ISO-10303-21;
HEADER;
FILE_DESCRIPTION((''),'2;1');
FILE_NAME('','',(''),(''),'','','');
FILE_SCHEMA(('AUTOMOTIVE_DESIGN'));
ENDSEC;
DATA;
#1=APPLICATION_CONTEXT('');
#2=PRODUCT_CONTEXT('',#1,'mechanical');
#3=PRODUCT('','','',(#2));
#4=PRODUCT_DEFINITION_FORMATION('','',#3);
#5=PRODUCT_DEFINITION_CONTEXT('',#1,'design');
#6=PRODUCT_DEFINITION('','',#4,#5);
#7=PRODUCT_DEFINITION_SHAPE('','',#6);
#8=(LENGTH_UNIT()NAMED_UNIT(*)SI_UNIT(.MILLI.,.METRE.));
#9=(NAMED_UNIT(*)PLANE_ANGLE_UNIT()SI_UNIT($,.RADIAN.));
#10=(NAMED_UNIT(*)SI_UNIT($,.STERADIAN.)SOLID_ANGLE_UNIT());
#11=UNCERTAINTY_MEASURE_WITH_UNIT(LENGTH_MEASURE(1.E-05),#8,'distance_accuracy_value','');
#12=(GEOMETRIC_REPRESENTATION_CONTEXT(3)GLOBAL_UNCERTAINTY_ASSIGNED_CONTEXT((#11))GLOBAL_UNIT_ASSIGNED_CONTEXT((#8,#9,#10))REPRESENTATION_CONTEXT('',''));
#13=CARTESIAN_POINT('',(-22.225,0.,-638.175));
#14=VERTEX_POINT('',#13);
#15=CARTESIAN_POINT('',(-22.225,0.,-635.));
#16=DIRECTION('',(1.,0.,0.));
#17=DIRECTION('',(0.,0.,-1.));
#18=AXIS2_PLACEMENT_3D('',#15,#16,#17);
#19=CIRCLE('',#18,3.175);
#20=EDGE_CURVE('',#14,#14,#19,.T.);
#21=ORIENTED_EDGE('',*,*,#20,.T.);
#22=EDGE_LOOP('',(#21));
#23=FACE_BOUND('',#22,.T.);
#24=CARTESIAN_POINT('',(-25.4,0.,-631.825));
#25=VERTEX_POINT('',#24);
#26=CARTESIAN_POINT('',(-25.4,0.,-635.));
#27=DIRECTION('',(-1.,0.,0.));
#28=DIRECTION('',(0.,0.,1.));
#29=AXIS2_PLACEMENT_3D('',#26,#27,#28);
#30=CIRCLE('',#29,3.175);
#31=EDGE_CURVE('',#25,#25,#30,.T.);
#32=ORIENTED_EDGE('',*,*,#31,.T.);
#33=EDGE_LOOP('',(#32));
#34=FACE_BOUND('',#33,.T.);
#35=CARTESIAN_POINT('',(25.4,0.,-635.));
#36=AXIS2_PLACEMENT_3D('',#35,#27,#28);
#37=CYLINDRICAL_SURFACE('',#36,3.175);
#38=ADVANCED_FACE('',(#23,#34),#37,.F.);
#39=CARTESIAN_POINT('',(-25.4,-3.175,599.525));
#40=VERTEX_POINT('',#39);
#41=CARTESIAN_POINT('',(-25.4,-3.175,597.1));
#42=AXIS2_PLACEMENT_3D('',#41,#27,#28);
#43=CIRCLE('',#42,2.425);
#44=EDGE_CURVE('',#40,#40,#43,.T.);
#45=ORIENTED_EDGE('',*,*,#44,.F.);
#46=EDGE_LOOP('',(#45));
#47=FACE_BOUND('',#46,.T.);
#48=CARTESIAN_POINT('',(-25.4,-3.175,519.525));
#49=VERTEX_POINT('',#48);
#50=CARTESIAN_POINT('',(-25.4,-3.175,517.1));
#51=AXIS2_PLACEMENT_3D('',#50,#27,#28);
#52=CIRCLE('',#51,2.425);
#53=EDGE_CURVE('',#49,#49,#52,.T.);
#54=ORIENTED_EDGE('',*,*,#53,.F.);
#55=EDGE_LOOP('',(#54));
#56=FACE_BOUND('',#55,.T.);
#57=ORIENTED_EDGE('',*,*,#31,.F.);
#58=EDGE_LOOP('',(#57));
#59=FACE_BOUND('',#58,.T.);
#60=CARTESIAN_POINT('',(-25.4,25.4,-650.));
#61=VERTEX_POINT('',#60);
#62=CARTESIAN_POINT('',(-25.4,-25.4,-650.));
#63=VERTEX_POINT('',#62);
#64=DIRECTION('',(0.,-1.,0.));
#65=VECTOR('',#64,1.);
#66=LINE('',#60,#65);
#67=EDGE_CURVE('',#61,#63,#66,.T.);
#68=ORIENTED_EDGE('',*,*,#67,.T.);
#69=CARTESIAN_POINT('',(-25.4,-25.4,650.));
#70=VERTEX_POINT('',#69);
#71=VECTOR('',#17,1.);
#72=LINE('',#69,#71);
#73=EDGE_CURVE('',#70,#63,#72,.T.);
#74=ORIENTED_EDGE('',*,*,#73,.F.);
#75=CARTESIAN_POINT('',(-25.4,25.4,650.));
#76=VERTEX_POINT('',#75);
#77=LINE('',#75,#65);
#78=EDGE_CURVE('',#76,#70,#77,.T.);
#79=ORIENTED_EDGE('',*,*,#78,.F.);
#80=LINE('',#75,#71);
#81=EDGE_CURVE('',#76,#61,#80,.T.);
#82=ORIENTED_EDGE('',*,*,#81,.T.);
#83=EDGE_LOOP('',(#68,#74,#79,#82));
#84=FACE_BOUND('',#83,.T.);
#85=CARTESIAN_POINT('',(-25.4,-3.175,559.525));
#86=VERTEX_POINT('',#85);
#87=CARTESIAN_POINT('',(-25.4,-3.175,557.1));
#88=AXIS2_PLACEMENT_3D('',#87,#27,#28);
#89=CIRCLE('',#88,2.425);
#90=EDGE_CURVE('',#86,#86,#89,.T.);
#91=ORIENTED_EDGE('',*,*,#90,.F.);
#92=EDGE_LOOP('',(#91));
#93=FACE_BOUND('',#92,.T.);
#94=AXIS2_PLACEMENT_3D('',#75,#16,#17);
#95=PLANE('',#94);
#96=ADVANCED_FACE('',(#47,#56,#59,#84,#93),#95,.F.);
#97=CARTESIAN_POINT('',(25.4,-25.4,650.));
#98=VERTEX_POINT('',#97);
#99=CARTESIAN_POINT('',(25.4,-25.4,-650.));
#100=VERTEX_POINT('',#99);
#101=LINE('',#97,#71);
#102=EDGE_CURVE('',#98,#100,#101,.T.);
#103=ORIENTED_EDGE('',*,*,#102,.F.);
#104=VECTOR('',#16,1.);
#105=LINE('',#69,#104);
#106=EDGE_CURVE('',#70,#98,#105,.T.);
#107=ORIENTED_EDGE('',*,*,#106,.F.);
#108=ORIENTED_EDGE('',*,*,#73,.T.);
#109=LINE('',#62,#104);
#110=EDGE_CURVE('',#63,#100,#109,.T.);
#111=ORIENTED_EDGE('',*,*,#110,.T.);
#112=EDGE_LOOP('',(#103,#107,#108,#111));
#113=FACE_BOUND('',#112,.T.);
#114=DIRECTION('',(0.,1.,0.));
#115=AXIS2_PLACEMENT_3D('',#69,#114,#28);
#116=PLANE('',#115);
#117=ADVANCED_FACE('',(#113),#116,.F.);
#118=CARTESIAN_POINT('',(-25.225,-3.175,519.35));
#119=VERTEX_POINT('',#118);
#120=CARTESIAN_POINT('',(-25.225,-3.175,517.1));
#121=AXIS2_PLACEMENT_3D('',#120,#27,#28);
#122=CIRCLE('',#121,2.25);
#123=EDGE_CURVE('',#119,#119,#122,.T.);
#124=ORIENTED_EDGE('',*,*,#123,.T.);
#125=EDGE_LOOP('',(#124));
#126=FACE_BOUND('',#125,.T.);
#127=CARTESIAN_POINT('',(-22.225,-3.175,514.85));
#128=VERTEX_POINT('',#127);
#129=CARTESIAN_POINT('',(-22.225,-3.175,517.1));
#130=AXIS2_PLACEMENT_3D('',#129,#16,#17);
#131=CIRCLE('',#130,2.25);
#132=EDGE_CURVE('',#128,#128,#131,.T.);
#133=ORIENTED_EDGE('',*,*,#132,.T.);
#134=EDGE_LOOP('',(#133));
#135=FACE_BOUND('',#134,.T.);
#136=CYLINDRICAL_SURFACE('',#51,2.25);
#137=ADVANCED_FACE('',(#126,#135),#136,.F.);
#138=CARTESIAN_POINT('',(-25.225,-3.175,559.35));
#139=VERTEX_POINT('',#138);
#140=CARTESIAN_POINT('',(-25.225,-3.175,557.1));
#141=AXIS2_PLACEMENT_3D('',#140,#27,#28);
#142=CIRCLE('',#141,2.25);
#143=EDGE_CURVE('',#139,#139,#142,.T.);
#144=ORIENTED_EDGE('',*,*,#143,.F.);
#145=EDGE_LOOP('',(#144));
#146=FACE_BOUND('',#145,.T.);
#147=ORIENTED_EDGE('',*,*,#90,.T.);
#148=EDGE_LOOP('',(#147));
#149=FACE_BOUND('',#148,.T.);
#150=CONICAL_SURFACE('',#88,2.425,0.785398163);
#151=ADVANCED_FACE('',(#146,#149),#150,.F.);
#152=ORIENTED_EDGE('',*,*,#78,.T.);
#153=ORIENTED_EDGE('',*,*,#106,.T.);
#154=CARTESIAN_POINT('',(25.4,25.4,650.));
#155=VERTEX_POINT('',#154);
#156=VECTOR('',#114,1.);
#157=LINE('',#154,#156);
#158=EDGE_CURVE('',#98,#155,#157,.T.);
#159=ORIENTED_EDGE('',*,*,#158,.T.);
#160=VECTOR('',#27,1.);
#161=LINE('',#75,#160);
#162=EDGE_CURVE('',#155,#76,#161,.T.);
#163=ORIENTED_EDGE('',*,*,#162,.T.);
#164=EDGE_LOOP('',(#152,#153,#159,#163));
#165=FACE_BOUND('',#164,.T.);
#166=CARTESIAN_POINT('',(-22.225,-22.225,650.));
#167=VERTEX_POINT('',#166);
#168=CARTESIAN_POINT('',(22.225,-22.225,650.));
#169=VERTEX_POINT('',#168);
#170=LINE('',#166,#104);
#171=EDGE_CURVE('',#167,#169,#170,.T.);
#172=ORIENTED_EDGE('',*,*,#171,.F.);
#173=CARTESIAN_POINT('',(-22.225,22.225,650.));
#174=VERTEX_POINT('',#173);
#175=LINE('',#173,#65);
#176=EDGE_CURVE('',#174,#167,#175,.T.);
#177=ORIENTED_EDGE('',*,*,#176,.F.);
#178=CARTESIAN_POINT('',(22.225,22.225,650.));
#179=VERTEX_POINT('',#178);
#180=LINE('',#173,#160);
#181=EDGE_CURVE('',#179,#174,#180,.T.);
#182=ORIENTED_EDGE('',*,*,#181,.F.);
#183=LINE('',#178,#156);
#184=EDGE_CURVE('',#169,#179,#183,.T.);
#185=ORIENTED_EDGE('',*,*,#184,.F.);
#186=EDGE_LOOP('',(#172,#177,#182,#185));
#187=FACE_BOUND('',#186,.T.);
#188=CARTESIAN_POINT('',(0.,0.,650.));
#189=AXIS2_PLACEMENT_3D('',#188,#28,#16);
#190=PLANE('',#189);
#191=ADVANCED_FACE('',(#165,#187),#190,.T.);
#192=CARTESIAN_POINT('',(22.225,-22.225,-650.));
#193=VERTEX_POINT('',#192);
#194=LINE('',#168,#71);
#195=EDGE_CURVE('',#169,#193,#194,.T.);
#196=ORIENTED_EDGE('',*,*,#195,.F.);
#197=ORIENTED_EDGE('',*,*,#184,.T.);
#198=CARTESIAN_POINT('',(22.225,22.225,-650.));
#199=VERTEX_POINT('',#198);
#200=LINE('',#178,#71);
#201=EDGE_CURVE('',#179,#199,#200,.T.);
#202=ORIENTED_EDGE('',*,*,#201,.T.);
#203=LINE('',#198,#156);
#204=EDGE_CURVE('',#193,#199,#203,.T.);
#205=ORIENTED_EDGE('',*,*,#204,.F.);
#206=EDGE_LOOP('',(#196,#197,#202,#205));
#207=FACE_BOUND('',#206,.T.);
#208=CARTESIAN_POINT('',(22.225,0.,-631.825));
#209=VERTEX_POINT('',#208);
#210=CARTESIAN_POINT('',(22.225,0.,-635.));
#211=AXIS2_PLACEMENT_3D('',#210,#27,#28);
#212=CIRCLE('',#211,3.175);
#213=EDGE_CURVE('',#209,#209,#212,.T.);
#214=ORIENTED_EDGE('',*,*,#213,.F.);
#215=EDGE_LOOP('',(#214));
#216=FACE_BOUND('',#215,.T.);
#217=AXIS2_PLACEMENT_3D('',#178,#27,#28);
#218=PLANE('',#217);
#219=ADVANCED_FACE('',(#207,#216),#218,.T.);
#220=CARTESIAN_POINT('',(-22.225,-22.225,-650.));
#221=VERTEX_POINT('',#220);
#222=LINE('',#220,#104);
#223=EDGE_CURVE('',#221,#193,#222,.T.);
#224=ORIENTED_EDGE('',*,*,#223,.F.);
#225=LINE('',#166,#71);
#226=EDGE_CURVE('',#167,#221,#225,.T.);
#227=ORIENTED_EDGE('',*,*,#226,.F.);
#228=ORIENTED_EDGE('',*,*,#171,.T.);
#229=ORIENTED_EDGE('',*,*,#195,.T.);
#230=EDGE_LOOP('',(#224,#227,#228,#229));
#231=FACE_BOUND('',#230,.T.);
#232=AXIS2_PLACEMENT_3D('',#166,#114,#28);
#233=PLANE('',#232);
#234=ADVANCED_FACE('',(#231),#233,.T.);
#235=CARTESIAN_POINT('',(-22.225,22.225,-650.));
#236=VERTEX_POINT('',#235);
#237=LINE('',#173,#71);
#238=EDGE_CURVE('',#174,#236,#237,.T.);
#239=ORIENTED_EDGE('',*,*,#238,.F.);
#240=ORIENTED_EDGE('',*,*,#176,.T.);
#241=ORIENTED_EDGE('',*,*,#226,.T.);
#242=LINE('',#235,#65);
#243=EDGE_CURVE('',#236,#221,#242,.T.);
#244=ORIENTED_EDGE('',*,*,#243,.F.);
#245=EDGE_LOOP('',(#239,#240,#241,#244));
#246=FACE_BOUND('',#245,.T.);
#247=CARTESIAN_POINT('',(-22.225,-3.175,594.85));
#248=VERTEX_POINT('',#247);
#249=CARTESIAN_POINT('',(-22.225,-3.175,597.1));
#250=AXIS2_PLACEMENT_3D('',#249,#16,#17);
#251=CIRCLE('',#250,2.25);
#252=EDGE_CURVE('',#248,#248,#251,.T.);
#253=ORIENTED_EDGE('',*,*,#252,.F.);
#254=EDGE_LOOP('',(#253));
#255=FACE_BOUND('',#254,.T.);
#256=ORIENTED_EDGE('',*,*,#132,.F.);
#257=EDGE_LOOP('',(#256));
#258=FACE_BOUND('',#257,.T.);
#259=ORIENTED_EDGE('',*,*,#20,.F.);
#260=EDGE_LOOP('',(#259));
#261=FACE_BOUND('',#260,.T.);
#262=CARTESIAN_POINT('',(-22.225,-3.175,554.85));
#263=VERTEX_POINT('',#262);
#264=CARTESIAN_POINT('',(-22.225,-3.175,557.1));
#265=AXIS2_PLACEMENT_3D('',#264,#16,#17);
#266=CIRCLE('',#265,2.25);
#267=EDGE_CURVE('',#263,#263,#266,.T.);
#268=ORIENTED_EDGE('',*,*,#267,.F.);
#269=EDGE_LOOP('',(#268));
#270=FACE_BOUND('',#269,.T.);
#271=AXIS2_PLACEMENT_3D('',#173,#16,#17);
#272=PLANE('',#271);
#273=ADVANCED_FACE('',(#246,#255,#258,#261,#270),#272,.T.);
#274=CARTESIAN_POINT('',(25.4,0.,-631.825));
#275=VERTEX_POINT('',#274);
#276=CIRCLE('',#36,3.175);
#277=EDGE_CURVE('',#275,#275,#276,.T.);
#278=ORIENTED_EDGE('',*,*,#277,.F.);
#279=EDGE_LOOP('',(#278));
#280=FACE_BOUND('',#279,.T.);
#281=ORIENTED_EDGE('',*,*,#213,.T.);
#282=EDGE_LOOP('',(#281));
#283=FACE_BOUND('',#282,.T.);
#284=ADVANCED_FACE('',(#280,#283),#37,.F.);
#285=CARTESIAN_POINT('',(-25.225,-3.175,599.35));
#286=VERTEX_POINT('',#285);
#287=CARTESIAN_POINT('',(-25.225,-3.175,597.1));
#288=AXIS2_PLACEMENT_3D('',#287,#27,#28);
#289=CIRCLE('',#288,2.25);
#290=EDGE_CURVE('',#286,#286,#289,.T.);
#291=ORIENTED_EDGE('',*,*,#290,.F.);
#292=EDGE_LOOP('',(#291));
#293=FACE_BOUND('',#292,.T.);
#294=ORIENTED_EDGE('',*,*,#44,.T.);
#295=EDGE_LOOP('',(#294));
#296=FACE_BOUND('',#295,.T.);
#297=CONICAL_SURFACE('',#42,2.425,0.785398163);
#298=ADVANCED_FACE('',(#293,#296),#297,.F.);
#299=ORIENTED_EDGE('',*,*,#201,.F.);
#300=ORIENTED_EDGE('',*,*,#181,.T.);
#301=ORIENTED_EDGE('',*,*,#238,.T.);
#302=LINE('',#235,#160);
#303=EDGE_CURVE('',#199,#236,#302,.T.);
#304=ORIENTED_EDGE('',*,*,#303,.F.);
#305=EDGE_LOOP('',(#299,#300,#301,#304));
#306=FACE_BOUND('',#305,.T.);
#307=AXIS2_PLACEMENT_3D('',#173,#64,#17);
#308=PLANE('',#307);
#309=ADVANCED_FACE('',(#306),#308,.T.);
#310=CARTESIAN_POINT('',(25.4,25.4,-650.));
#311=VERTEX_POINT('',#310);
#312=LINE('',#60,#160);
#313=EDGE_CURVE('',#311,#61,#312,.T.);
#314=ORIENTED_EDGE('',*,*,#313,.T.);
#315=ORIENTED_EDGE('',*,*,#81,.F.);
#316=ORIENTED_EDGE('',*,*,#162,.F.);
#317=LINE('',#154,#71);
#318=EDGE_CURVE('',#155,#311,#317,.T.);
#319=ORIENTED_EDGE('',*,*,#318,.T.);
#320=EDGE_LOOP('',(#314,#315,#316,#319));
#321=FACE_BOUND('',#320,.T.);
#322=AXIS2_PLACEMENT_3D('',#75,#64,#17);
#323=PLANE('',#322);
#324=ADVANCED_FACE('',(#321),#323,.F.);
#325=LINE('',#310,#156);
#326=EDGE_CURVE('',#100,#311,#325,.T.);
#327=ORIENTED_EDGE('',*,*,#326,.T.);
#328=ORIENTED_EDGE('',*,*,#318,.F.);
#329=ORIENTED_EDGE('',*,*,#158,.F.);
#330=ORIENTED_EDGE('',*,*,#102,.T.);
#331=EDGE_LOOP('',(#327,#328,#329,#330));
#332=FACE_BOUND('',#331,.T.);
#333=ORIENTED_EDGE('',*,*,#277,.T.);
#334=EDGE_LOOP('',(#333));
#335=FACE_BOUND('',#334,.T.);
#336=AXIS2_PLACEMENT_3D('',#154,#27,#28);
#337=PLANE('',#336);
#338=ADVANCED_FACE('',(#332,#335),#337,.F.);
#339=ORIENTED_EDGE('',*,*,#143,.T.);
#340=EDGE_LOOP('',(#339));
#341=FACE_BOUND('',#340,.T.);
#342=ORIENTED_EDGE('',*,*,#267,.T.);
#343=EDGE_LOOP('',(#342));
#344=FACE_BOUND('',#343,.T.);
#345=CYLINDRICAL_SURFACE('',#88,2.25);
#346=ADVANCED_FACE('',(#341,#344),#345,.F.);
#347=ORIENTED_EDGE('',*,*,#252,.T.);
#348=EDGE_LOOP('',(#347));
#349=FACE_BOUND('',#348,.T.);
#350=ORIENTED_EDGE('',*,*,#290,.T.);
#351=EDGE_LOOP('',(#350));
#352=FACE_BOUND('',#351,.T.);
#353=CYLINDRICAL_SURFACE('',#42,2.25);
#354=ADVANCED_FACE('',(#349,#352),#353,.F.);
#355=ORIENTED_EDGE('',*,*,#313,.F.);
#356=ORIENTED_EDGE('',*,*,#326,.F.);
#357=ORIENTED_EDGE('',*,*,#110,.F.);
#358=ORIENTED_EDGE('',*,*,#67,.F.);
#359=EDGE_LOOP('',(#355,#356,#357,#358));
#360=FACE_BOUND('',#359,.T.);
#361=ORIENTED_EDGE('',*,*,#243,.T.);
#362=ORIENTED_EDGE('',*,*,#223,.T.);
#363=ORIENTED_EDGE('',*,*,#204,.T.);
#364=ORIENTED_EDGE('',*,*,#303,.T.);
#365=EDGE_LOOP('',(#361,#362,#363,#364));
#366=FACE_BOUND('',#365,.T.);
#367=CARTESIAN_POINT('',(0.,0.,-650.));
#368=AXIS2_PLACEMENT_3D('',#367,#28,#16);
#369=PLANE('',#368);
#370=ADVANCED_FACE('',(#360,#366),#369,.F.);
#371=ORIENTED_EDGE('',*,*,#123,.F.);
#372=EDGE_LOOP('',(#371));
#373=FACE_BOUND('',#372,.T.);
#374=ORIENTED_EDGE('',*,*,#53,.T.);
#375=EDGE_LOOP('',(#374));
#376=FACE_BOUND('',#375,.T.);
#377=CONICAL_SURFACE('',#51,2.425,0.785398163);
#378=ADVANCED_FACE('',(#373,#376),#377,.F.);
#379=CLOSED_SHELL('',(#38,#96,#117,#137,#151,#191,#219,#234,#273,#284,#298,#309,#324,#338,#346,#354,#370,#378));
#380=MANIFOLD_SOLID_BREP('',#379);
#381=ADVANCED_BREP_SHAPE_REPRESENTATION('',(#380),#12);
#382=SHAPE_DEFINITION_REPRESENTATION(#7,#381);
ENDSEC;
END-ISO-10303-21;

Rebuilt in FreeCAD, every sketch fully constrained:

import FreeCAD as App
import Part
import Sketcher
from FreeCAD import Vector
Q = App.Units.Quantity

doc = App.newDocument("Part")
body = doc.addObject("PartDesign::Body", "Body")

sketch1 = body.newObject("Sketcher::SketchObject", "Sketch")
sketch1.AttachmentSupport = (doc.getObject("XY_Plane"), [""])
sketch1.MapMode = "FlatFace"
sketch1.addGeometry(Part.LineSegment(Vector(-25.4, 25.4, 0), Vector(-25.4, -25.4, 0)), False)
sketch1.addGeometry(Part.LineSegment(Vector(-25.4, -25.4, 0), Vector(25.4, -25.4, 0)), False)
sketch1.addGeometry(Part.LineSegment(Vector(25.4, -25.4, 0), Vector(25.4, 25.4, 0)), False)
sketch1.addGeometry(Part.LineSegment(Vector(25.4, 25.4, 0), Vector(-25.4, 25.4, 0)), False)
sketch1.addGeometry(Part.LineSegment(Vector(22.225, -22.225, 0), Vector(-22.225, -22.225, 0)), False)
sketch1.addGeometry(Part.LineSegment(Vector(-22.225, -22.225, 0), Vector(-22.225, 22.225, 0)), False)
sketch1.addGeometry(Part.LineSegment(Vector(-22.225, 22.225, 0), Vector(22.225, 22.225, 0)), False)
sketch1.addGeometry(Part.LineSegment(Vector(22.225, 22.225, 0), Vector(22.225, -22.225, 0)), False)
sketch1.addConstraint(Sketcher.Constraint("Coincident", 0, 2, 1, 1))
sketch1.addConstraint(Sketcher.Constraint("Coincident", 1, 2, 2, 1))
sketch1.addConstraint(Sketcher.Constraint("Coincident", 2, 2, 3, 1))
sketch1.addConstraint(Sketcher.Constraint("Coincident", 3, 2, 0, 1))
sketch1.addConstraint(Sketcher.Constraint("Coincident", 4, 2, 5, 1))
sketch1.addConstraint(Sketcher.Constraint("Coincident", 5, 2, 6, 1))
sketch1.addConstraint(Sketcher.Constraint("Coincident", 6, 2, 7, 1))
sketch1.addConstraint(Sketcher.Constraint("Coincident", 7, 2, 4, 1))
sketch1.addConstraint(Sketcher.Constraint("Vertical", 0))
sketch1.addConstraint(Sketcher.Constraint("Horizontal", 1))
sketch1.addConstraint(Sketcher.Constraint("Vertical", 2))
sketch1.addConstraint(Sketcher.Constraint("Horizontal", 3))
sketch1.addConstraint(Sketcher.Constraint("Horizontal", 4))
sketch1.addConstraint(Sketcher.Constraint("Vertical", 5))
sketch1.addConstraint(Sketcher.Constraint("Horizontal", 6))
sketch1.addConstraint(Sketcher.Constraint("Vertical", 7))
sketch1.addConstraint(Sketcher.Constraint("Symmetric", 0, 2, 2, 2, -1, 1))
sketch1.addConstraint(Sketcher.Constraint("Symmetric", 4, 2, 6, 2, -1, 1))
sketch1.addConstraint(Sketcher.Constraint("Equal", 3, 0))
sketch1.addConstraint(Sketcher.Constraint("Equal", 6, 5))
sketch1.addConstraint(Sketcher.Constraint("DistanceX", 1, 1, 1, 2, Q("2 in")))
sketch1.addConstraint(Sketcher.Constraint("DistanceX", 4, 2, 4, 1, Q("1.75 in")))
pad1 = body.newObject("PartDesign::Pad", "Pad")
pad1.Profile = sketch1
pad1.Length = 1300
pad1.Midplane = True

sketch2 = body.newObject("Sketcher::SketchObject", "Sketch001")
sketch2.AttachmentSupport = (doc.getObject("YZ_Plane"), [""])
sketch2.MapMode = "FlatFace"
sketch2.AttachmentOffset = App.Placement(Vector(0, 0, -1 * 25.4), App.Rotation())
sketch2.addGeometry(Part.Circle(Vector(0, -635, 0), Vector(0, 0, 1), 3.175), False)
sketch2.addConstraint(Sketcher.Constraint("PointOnObject", 0, 3, -2))
sketch2.addConstraint(Sketcher.Constraint("Diameter", 0, Q("0.25 in")))
sketch2.addConstraint(Sketcher.Constraint("DistanceY", 0, 3, -1, 1, Q("25 in")))
pocket1 = body.newObject("PartDesign::Pocket", "Pocket")
pocket1.Profile = sketch2
pocket1.Type = "ThroughAll"
pocket1.Reversed = True

sketch3 = body.newObject("Sketcher::SketchObject", "Sketch002")
sketch3.AttachmentSupport = (doc.getObject("YZ_Plane"), [""])
sketch3.MapMode = "FlatFace"
sketch3.AttachmentOffset = App.Placement(Vector(0, 0, -1 * 25.4), App.Rotation())
sketch3.addGeometry(Part.Circle(Vector(-3.175, 517.1, 0), Vector(0, 0, 1), 2.25), False)
sketch3.addGeometry(Part.Circle(Vector(-3.175, 557.1, 0), Vector(0, 0, 1), 2.25), False)
sketch3.addGeometry(Part.Circle(Vector(-3.175, 597.1, 0), Vector(0, 0, 1), 2.25), False)
sketch3.addConstraint(Sketcher.Constraint("Equal", 0, 1))
sketch3.addConstraint(Sketcher.Constraint("Equal", 1, 2))
sketch3.addConstraint(Sketcher.Constraint("Vertical", 0, 3, 1, 3))
sketch3.addConstraint(Sketcher.Constraint("Vertical", 1, 3, 2, 3))
sketch3.addConstraint(Sketcher.Constraint("Diameter", 0, Q("4.5 mm")))
sketch3.addConstraint(Sketcher.Constraint("DistanceX", 0, 3, -1, 1, Q("0.125 in")))
sketch3.addConstraint(Sketcher.Constraint("DistanceY", -1, 1, 0, 3, Q("517.1 mm")))
sketch3.addConstraint(Sketcher.Constraint("DistanceY", -1, 1, 1, 3, Q("557.1 mm")))
sketch3.addConstraint(Sketcher.Constraint("DistanceY", -1, 1, 2, 3, Q("597.1 mm")))
doc.recompute()
hole = body.newObject("PartDesign::Hole", "Hole")
hole.Profile = sketch3
hole.ThreadType = "None"
hole.Diameter = 4.5
hole.DepthType = "Dimension"
hole.Depth = Q("0.125 in")
hole.DrillPoint = "Flat"
hole.HoleCutType = "Countersink"
hole.HoleCutDiameter = 4.85
hole.HoleCutCountersinkAngle = 90
hole.Reversed = True

doc.recompute()
